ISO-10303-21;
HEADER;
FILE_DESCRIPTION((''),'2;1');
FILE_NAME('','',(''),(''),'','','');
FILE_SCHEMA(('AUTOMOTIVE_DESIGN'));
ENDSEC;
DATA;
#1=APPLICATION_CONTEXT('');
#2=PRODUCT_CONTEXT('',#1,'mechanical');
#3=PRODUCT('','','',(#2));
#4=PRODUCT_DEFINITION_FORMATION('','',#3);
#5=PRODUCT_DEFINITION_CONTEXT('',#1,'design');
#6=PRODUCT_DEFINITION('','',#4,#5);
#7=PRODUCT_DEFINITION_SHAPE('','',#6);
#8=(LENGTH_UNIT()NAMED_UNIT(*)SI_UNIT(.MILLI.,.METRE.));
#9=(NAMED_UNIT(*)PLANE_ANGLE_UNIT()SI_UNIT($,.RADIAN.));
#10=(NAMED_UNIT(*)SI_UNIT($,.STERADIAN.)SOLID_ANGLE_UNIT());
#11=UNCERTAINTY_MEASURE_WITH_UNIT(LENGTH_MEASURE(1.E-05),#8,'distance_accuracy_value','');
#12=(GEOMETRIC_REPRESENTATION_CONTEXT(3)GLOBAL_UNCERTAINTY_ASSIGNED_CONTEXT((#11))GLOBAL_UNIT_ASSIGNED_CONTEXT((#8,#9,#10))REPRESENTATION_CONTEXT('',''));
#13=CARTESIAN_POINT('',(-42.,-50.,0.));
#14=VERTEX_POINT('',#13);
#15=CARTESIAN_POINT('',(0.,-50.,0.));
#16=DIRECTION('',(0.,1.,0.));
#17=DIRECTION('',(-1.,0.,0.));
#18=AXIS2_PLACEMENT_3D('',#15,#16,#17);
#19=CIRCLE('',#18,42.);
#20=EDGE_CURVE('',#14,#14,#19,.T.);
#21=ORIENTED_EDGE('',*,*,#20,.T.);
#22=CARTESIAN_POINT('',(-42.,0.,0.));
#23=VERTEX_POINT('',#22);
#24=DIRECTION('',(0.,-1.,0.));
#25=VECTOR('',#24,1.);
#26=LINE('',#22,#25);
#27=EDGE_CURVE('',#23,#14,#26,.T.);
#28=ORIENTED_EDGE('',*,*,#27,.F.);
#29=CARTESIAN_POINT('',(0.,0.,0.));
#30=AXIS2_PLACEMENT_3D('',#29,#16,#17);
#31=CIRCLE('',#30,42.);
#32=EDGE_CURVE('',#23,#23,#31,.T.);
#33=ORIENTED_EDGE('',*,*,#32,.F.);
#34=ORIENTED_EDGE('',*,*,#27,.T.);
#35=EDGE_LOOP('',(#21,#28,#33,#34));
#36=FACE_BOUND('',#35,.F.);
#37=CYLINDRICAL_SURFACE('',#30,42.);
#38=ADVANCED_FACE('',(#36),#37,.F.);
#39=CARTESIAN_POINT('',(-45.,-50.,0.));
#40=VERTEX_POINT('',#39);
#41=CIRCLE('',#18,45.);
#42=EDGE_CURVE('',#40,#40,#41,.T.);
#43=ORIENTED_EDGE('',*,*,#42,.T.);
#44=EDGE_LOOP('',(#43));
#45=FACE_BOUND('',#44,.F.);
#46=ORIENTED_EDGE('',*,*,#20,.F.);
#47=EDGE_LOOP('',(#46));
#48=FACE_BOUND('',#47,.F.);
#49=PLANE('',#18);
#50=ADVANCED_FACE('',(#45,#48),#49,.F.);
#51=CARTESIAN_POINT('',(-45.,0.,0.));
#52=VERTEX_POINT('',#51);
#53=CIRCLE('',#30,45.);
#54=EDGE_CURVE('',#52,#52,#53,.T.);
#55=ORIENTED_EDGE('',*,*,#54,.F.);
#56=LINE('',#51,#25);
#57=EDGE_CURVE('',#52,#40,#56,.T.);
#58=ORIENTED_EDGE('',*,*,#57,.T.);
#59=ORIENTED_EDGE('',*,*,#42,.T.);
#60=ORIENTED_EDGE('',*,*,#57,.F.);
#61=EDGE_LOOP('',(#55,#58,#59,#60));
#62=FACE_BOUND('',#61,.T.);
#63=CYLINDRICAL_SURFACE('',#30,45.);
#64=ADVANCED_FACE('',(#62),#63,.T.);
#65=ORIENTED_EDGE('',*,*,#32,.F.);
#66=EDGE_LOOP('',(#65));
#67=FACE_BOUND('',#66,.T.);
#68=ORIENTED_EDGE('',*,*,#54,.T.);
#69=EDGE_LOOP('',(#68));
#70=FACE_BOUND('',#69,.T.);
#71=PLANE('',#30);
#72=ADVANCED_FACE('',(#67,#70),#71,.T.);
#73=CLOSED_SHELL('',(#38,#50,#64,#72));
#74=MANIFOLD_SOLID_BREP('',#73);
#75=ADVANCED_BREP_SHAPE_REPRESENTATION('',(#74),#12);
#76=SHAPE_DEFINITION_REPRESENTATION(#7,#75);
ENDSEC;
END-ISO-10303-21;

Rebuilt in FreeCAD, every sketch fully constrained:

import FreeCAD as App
import Part
import Sketcher

V = App.Vector

doc = App.newDocument("Part")
params = doc.addObject("Spreadsheet::Sheet", "Params")
for row, (alias, value) in enumerate([
    ("sketch1_diameter", "90 mm"),
    ("sketch1_diameter2", "84 mm"),
    ("pad1_length", "50 mm"),
], start=1):
    params.set(f"A{row}", alias)
    params.set(f"B{row}", "=" + value)
    params.setAlias(f"B{row}", alias)

body = doc.addObject("PartDesign::Body", "Body")

sketch1 = body.newObject("Sketcher::SketchObject", "Sketch")
sketch1.AttachmentSupport = (doc.getObject("XZ_Plane"), [""])
sketch1.MapMode = "FlatFace"
sketch1.addGeometry(Part.Circle(V(0, 0, 0), V(0, 0, 1), 45), False)
sketch1.addGeometry(Part.Circle(V(0, 0, 0), V(0, 0, 1), 42), False)
sketch1.addConstraint(Sketcher.Constraint("Coincident", 0, 3, -1, 1))
sketch1.addConstraint(Sketcher.Constraint("Coincident", 1, 3, -1, 1))
sketch1.addConstraint(Sketcher.Constraint("Diameter", 0, 90.0))
sketch1.addConstraint(Sketcher.Constraint("Diameter", 1, 84.0))
sketch1.setExpression("Constraints[2]", "Params.sketch1_diameter")
sketch1.setExpression("Constraints[3]", "Params.sketch1_diameter2")
pad1 = body.newObject("PartDesign::Pad", "Pad")
pad1.Profile = sketch1
pad1.setExpression("Length", "Params.pad1_length")

doc.recompute()
